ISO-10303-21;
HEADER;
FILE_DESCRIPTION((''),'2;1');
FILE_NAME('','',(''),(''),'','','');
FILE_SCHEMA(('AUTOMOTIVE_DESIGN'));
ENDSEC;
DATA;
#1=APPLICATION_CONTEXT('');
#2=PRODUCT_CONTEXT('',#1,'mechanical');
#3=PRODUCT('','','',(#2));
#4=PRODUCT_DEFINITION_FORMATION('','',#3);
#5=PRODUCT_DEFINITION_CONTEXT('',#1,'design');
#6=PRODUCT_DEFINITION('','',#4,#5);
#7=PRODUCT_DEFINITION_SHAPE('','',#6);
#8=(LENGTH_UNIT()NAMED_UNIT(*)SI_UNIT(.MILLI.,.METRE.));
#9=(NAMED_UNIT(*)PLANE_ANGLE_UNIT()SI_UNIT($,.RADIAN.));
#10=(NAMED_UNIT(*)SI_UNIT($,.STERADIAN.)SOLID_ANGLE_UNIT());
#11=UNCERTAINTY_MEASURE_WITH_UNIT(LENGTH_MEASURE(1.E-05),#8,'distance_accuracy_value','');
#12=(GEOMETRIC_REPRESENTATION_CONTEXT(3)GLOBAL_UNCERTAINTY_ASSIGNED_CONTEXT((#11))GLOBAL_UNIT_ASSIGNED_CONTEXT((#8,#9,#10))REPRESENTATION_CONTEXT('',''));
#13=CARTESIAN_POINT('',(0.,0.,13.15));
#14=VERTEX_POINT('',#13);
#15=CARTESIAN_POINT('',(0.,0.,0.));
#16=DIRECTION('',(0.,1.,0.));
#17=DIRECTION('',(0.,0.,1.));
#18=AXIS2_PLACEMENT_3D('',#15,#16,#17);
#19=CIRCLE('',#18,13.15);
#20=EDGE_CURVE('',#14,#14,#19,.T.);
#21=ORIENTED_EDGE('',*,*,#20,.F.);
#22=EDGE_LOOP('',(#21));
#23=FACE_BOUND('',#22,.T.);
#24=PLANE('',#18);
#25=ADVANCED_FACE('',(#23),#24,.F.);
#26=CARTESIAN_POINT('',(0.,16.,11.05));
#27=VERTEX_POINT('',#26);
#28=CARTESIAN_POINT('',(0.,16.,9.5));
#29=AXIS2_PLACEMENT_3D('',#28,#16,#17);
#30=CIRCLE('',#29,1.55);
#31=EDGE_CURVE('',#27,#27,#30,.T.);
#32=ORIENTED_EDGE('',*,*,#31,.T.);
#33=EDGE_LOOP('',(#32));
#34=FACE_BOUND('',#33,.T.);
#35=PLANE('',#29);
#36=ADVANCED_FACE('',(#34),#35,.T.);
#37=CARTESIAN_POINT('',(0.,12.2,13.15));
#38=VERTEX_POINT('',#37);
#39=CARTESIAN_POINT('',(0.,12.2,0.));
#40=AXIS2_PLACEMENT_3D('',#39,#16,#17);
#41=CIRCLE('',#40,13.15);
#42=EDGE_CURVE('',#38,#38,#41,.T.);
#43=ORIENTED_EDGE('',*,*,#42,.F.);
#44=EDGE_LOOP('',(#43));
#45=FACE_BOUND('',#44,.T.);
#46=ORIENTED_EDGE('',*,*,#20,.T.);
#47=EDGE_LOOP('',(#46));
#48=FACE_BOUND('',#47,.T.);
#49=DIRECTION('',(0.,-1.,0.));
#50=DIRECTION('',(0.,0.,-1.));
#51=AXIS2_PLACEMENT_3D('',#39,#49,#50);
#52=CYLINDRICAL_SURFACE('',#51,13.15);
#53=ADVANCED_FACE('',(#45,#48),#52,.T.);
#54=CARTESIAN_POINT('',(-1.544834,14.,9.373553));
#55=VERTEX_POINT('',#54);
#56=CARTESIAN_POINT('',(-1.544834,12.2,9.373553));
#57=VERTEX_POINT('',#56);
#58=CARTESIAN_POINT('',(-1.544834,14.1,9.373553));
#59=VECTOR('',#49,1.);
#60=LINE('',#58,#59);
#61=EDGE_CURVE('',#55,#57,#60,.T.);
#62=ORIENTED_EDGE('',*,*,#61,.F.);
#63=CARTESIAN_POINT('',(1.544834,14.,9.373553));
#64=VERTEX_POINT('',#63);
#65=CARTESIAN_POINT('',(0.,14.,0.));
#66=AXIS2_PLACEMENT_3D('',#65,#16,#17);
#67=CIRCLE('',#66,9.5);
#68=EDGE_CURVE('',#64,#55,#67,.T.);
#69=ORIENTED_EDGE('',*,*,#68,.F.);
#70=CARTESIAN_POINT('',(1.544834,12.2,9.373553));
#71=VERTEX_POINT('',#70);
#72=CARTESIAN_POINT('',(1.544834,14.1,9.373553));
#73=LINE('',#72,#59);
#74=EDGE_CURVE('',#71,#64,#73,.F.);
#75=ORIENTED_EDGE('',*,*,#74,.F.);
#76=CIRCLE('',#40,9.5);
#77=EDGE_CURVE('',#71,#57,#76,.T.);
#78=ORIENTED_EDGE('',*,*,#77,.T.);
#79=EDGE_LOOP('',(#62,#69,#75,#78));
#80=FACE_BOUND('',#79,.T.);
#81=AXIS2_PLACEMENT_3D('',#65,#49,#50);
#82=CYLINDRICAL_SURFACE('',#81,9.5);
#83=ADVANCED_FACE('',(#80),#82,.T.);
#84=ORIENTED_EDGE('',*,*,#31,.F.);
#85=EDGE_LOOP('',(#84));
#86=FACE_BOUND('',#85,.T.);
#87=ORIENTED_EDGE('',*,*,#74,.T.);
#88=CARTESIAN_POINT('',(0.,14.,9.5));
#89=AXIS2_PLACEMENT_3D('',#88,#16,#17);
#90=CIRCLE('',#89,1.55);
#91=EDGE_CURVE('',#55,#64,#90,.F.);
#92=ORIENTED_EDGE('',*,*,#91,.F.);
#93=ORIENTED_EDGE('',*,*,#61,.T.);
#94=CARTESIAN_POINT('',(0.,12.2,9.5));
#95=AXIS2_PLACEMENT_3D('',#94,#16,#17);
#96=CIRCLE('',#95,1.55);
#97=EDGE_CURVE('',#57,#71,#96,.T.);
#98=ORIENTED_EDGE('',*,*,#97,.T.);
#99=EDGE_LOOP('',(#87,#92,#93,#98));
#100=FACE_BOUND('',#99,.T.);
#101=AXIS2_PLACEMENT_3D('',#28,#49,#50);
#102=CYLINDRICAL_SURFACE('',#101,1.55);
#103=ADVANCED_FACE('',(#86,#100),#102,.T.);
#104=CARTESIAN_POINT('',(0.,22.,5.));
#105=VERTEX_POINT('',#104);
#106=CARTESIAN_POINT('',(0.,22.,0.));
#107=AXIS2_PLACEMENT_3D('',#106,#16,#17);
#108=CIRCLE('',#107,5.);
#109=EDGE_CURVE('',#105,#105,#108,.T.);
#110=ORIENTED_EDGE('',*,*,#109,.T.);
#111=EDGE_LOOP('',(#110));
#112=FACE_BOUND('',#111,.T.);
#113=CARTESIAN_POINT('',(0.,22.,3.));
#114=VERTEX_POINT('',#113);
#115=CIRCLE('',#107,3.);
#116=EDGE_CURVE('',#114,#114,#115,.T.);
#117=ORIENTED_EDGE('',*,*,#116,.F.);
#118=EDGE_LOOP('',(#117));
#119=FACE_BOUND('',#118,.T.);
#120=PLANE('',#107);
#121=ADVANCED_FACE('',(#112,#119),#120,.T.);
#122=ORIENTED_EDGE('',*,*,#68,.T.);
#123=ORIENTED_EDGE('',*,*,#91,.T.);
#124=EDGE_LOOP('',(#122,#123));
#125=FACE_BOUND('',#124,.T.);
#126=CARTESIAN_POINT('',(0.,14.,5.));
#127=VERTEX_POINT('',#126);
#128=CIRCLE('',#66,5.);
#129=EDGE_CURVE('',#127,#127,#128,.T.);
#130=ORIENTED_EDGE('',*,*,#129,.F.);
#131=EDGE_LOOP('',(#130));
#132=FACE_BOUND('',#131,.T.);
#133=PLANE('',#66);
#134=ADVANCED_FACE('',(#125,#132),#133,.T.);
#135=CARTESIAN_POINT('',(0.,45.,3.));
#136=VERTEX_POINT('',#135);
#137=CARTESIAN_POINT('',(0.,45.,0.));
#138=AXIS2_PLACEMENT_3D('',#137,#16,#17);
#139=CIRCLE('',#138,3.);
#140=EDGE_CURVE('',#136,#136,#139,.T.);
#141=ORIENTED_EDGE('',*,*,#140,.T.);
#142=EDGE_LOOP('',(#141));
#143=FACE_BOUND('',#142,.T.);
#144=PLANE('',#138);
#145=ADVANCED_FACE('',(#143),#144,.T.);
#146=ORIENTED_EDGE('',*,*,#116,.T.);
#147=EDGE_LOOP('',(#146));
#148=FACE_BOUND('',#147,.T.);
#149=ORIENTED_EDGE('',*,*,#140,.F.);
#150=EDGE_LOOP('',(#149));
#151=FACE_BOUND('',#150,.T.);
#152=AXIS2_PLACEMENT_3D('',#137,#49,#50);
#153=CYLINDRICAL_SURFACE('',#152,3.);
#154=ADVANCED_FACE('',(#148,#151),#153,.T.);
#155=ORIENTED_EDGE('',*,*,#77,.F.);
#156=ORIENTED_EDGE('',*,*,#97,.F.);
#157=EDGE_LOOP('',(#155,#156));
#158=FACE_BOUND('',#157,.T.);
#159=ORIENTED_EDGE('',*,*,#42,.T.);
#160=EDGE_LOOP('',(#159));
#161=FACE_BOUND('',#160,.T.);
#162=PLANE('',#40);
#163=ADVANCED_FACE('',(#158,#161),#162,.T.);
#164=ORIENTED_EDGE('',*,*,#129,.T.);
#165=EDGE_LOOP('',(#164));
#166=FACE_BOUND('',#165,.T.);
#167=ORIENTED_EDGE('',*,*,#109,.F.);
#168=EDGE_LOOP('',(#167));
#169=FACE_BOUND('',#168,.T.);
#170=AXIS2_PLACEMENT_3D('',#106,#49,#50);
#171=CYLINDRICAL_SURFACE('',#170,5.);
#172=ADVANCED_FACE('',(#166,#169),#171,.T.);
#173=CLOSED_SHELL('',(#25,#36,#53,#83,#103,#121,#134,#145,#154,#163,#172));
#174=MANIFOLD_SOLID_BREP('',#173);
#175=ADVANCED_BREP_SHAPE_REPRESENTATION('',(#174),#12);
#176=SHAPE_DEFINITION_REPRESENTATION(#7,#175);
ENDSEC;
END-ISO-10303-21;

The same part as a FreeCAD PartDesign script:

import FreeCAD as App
import Part
import Sketcher
Q = App.Units.Quantity

doc = App.newDocument("Part")
body = doc.addObject("PartDesign::Body", "Body")

sketch1 = doc.addObject("Sketcher::SketchObject", "Sketch")
body.addObject(sketch1)
sketch1.AttachmentSupport = (doc.XZ_Plane, [""])
sketch1.MapMode = "FlatFace"
sketch1.addGeometry(Part.Circle(App.Vector(0, 0, 0), App.Vector(0, 0, 1), 13), False)
sketch1.addConstraint([
    Sketcher.Constraint("Coincident", 0, 3, -1, 1),
    Sketcher.Constraint("Diameter", 0, Q("26.3 mm")),
])
pad1 = doc.addObject("PartDesign::Pad", "Pad")
body.addObject(pad1)
pad1.Profile = sketch1
pad1.Length = 12.2
pad1.Reversed = True

sketch2 = doc.addObject("Sketcher::SketchObject", "Sketch001")
body.addObject(sketch2)
sketch2.AttachmentSupport = (doc.XZ_Plane, [""])
sketch2.MapMode = "FlatFace"
sketch2.AttachmentOffset = App.Placement(App.Vector(0, 0, -12.2), App.Rotation())
sketch2.addGeometry(Part.Circle(App.Vector(0, 0, 0), App.Vector(0, 0, 1), 10), False)
sketch2.addConstraint([
    Sketcher.Constraint("Coincident", 0, 3, -1, 1),
    Sketcher.Constraint("Diameter", 0, Q("19 mm")),
])
pad2 = doc.addObject("PartDesign::Pad", "Pad001")
body.addObject(pad2)
pad2.Profile = sketch2
pad2.Length = 1.8
pad2.Reversed = True

sketch3 = doc.addObject("Sketcher::SketchObject", "Sketch002")
body.addObject(sketch3)
sketch3.AttachmentSupport = (doc.XZ_Plane, [""])
sketch3.MapMode = "FlatFace"
sketch3.AttachmentOffset = App.Placement(App.Vector(0, 0, -14), App.Rotation())
sketch3.addGeometry(Part.Circle(App.Vector(0, 0, 0), App.Vector(0, 0, 1), 5), False)
sketch3.addConstraint([
    Sketcher.Constraint("Coincident", 0, 3, -1, 1),
    Sketcher.Constraint("Diameter", 0, Q("10 mm")),
])
pad3 = doc.addObject("PartDesign::Pad", "Pad002")
body.addObject(pad3)
pad3.Profile = sketch3
pad3.Length = 8
pad3.Reversed = True

sketch4 = doc.addObject("Sketcher::SketchObject", "Sketch003")
body.addObject(sketch4)
sketch4.AttachmentSupport = (doc.XZ_Plane, [""])
sketch4.MapMode = "FlatFace"
sketch4.AttachmentOffset = App.Placement(App.Vector(0, 0, -22), App.Rotation())
sketch4.addGeometry(Part.Circle(App.Vector(0, 0, 0), App.Vector(0, 0, 1), 3), False)
sketch4.addConstraint([
    Sketcher.Constraint("Coincident", 0, 3, -1, 1),
    Sketcher.Constraint("Diameter", 0, Q("6 mm")),
])
pad4 = doc.addObject("PartDesign::Pad", "Pad003")
body.addObject(pad4)
pad4.Profile = sketch4
pad4.Length = 23
pad4.Reversed = True

sketch5 = doc.addObject("Sketcher::SketchObject", "Sketch004")
body.addObject(sketch5)
sketch5.AttachmentSupport = (doc.XZ_Plane, [""])
sketch5.MapMode = "FlatFace"
sketch5.AttachmentOffset = App.Placement(App.Vector(0, 0, -12.2), App.Rotation())
sketch5.addGeometry(Part.Circle(App.Vector(0, 9.5, 0), App.Vector(0, 0, 1), 1.6), False)
sketch5.addConstraint([
    Sketcher.Constraint("PointOnObject", 0, 3, -2),
    Sketcher.Constraint("Diameter", 0, Q("3.1 mm")),
    Sketcher.Constraint("DistanceY", -1, 1, 0, 3, Q("9.5 mm")),
])
pad5 = doc.addObject("PartDesign::Pad", "Pad004")
body.addObject(pad5)
pad5.Profile = sketch5
pad5.Length = 3.8
pad5.Reversed = True

doc.recompute()
